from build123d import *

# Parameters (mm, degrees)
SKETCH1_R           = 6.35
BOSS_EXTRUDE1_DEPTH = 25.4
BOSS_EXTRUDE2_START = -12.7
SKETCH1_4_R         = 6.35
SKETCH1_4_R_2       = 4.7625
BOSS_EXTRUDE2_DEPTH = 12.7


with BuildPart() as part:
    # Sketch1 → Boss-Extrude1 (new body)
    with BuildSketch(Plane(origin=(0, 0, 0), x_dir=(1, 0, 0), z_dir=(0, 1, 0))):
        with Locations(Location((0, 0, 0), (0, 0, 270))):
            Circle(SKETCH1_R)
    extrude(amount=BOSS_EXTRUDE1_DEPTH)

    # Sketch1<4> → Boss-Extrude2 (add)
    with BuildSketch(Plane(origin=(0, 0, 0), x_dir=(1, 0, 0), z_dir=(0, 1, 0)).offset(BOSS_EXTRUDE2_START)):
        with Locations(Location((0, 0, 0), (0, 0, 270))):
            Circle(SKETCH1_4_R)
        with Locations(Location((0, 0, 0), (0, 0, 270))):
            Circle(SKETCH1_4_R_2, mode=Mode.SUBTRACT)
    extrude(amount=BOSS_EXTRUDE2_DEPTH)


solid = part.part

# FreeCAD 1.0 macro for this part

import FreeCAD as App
import Part
import Sketcher
from FreeCAD import Vector
Q = App.Units.Quantity

doc = App.newDocument("Part")
body = doc.addObject("PartDesign::Body", "Body")

# Sketch on XZ plane
sketch1 = body.newObject("Sketcher::SketchObject", "Sketch")
sketch1.AttachmentSupport = (doc.getObject("XZ_Plane"), [""])
sketch1.MapMode = "FlatFace"
sketch1.addGeometry(Part.Circle(Vector(0, 0, 0), Vector(0, 0, 1), 6), False)
sketch1.addConstraint([
    Sketcher.Constraint("Coincident", 0, 3, -1, 1),
    Sketcher.Constraint("Diameter", 0, Q("0.5 in")),
])
pad1 = body.newObject("PartDesign::Pad", "Pad")
pad1.Profile = sketch1
pad1.Length = Q("1 in")
pad1.Reversed = True

# Sketch on XZ plane
sketch2 = body.newObject("Sketcher::SketchObject", "Sketch001")
sketch2.AttachmentSupport = (doc.getObject("XZ_Plane"), [""])
sketch2.MapMode = "FlatFace"
sketch2.AttachmentOffset = App.Placement(Vector(0, 0, 0.5 * 25.4), App.Rotation())
sketch2.addGeometry([
    Part.Circle(Vector(0, 0, 0), Vector(0, 0, 1), 6.3),
    Part.Circle(Vector(0, 0, 0), Vector(0, 0, 1), 4.8),
], False)
sketch2.addConstraint([
    Sketcher.Constraint("Coincident", 0, 3, -1, 1),
    Sketcher.Constraint("Coincident", 1, 3, -1, 1),
    Sketcher.Constraint("Diameter", 0, Q("0.5 in")),
    Sketcher.Constraint("Diameter", 1, Q("0.375 in")),
])
pad2 = body.newObject("PartDesign::Pad", "Pad001")
pad2.Profile = sketch2
pad2.Length = Q("0.5 in")
pad2.Reversed = True

doc.recompute()
